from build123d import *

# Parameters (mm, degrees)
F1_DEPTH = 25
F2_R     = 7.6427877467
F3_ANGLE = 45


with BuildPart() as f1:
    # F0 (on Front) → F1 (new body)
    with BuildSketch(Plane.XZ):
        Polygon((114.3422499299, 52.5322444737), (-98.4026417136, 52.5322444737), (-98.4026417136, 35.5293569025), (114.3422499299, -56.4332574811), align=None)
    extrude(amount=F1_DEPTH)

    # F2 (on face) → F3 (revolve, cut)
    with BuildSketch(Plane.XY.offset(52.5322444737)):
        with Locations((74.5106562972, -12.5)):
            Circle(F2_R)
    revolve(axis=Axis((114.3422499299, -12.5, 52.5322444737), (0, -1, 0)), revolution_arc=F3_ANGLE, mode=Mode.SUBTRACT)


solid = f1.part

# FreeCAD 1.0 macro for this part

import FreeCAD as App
import Part
import Sketcher

doc = App.newDocument("Part")
body = doc.addObject("PartDesign::Body", "Body")

# Sketch on XZ plane
sketch1 = doc.addObject("Sketcher::SketchObject", "Sketch")
body.addObject(sketch1)
sketch1.AttachmentSupport = (doc.XZ_Plane, [""])
sketch1.MapMode = "FlatFace"
sketch1.addGeometry([
    Part.LineSegment(App.Vector(114.34225, 52.532244, 0), App.Vector(-98.402642, 52.532244, 0)),
    Part.LineSegment(App.Vector(-98.402642, 52.532244, 0), App.Vector(-98.402642, 35.529357, 0)),
    Part.LineSegment(App.Vector(-98.402642, 35.529357, 0), App.Vector(114.34225, -56.433257, 0)),
    Part.LineSegment(App.Vector(114.34225, -56.433257, 0), App.Vector(114.34225, 52.532244, 0)),
], False)
sketch1.addConstraint([
    Sketcher.Constraint("Coincident", 0, 2, 1, 1),
    Sketcher.Constraint("Coincident", 1, 2, 2, 1),
    Sketcher.Constraint("Coincident", 2, 2, 3, 1),
    Sketcher.Constraint("Coincident", 3, 2, 0, 1),
    Sketcher.Constraint("Horizontal", 0),
    Sketcher.Constraint("Vertical", 1),
    Sketcher.Constraint("Vertical", 3),
    Sketcher.Constraint("DistanceY", 3, 1, 3, 2, 108.965502),
    Sketcher.Constraint("DistanceX", 0, 2, 0, 1, 212.744892),
    Sketcher.Constraint("DistanceY", 1, 2, 1, 1, 17.002888),
    Sketcher.Constraint("DistanceX", 0, 2, -1, 1, 98.402642),
    Sketcher.Constraint("DistanceY", -1, 1, 0, 2, 52.532244),
])
pad1 = doc.addObject("PartDesign::Pad", "Pad")
body.addObject(pad1)
pad1.Profile = sketch1
pad1.Length = 25

# Sketch on XY plane
sketch2 = doc.addObject("Sketcher::SketchObject", "Sketch001")
body.addObject(sketch2)
sketch2.AttachmentSupport = (doc.XY_Plane, [""])
sketch2.MapMode = "FlatFace"
sketch2.AttachmentOffset = App.Placement(App.Vector(0, 0, 52.532244), App.Rotation())
sketch2.addGeometry(Part.Circle(App.Vector(74.510656, -12.5, 0), App.Vector(0, 0, 1), 7.642788), False)
sketch2.addGeometry(Part.LineSegment(App.Vector(114.34225, -12.5, 0), App.Vector(114.34225, -22.5, 0)), True)  # axis
sketch2.addConstraint([
    Sketcher.Constraint("Vertical", 1),
    Sketcher.Constraint("Horizontal", 0, 3, 1, 1),
    Sketcher.Constraint("DistanceY", 1, 2, 1, 1, 10.0),
    Sketcher.Constraint("DistanceY", 0, 3, -1, 1, 12.5),
    Sketcher.Constraint("Diameter", 0, 15.285575),
    Sketcher.Constraint("DistanceX", -1, 1, 1, 1, 114.34225),
    Sketcher.Constraint("DistanceX", -1, 1, 0, 3, 74.510656),
])
groove = doc.addObject("PartDesign::Groove", "Groove")
body.addObject(groove)
groove.Profile = sketch2
groove.ReferenceAxis = (sketch2, ["Axis0"])
groove.Angle = 45

doc.recompute()
